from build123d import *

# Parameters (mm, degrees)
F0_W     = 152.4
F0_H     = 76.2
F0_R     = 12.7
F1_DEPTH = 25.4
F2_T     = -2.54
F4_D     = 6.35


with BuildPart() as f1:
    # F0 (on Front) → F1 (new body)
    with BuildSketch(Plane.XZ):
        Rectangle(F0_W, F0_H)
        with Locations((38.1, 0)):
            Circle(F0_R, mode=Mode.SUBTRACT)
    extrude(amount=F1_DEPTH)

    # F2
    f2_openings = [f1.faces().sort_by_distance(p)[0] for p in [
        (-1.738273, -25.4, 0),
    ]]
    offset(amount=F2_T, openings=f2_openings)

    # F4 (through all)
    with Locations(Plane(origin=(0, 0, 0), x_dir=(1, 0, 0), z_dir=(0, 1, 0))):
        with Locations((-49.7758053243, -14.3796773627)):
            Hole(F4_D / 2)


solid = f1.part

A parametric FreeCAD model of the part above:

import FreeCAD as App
import Part
import Sketcher
from FreeCAD import Vector
Q = App.Units.Quantity


def faces_at(feature, points):
    """Names of the faces that lie closest to the given points."""
    faces = feature.Shape.Faces
    near = lambda p: min(range(len(faces)), key=lambda i: faces[i].distToShape(Part.Vertex(*p))[0])
    return sorted({f"Face{near(p) + 1}" for p in points})

doc = App.newDocument("Part")
body = doc.addObject("PartDesign::Body", "Body")

sketch1 = body.newObject("Sketcher::SketchObject", "Sketch")
sketch1.AttachmentSupport = (doc.getObject("XZ_Plane"), [""])
sketch1.MapMode = "FlatFace"
sketch1.addGeometry([
    Part.LineSegment(Vector(-76, 38, 0), Vector(-76, -38, 0)),
    Part.LineSegment(Vector(-76, -38, 0), Vector(76, -38, 0)),
    Part.LineSegment(Vector(76, -38, 0), Vector(76, 38, 0)),
    Part.LineSegment(Vector(76, 38, 0), Vector(-76, 38, 0)),
    Part.Circle(Vector(38, 0, 0), Vector(0, 0, 1), 13),
], False)
sketch1.addConstraint([
    Sketcher.Constraint("Coincident", 0, 2, 1, 1),
    Sketcher.Constraint("Coincident", 1, 2, 2, 1),
    Sketcher.Constraint("Coincident", 2, 2, 3, 1),
    Sketcher.Constraint("Coincident", 3, 2, 0, 1),
    Sketcher.Constraint("Vertical", 0),
    Sketcher.Constraint("Horizontal", 1),
    Sketcher.Constraint("Vertical", 2),
    Sketcher.Constraint("Horizontal", 3),
    Sketcher.Constraint("Symmetric", 0, 2, 2, 2, -1, 1),
    Sketcher.Constraint("PointOnObject", 4, 3, -1),
    Sketcher.Constraint("Diameter", 4, Q("1 in")),
    Sketcher.Constraint("DistanceX", 1, 1, 1, 2, Q("6 in")),
    Sketcher.Constraint("DistanceY", 0, 2, 0, 1, Q("3 in")),
    Sketcher.Constraint("DistanceX", -1, 1, 4, 3, Q("1.5 in")),
])
pad1 = body.newObject("PartDesign::Pad", "Pad")
pad1.Profile = sketch1
pad1.Length = Q("1 in")
doc.recompute()

thickness = body.newObject("PartDesign::Thickness", "Thickness")
thickness.Base = (pad1, faces_at(pad1, [(0, -25.4, 0)]))
thickness.Value = Q("0.1 in")
thickness.Reversed = True
thickness.Join = "Arc"

sketch2 = body.newObject("Sketcher::SketchObject", "Sketch001")
sketch2.AttachmentSupport = (doc.getObject("XZ_Plane"), [""])
sketch2.MapMode = "FlatFace"
sketch2.addGeometry(Part.Circle(Vector(-49.8, 14.4, 0), Vector(0, 0, 1), 3.2), False)
sketch2.addConstraint([
    Sketcher.Constraint("Diameter", 0, Q("0.25 in")),
    Sketcher.Constraint("DistanceX", 0, 3, -1, 1, 49.775805),
    Sketcher.Constraint("DistanceY", -1, 1, 0, 3, 14.379677),
])
doc.recompute()
hole = body.newObject("PartDesign::Hole", "Hole")
hole.Profile = sketch2
hole.ThreadType = "None"
hole.Diameter = Q("0.25 in")
hole.DepthType = "ThroughAll"
hole.Reversed = True

doc.recompute()
